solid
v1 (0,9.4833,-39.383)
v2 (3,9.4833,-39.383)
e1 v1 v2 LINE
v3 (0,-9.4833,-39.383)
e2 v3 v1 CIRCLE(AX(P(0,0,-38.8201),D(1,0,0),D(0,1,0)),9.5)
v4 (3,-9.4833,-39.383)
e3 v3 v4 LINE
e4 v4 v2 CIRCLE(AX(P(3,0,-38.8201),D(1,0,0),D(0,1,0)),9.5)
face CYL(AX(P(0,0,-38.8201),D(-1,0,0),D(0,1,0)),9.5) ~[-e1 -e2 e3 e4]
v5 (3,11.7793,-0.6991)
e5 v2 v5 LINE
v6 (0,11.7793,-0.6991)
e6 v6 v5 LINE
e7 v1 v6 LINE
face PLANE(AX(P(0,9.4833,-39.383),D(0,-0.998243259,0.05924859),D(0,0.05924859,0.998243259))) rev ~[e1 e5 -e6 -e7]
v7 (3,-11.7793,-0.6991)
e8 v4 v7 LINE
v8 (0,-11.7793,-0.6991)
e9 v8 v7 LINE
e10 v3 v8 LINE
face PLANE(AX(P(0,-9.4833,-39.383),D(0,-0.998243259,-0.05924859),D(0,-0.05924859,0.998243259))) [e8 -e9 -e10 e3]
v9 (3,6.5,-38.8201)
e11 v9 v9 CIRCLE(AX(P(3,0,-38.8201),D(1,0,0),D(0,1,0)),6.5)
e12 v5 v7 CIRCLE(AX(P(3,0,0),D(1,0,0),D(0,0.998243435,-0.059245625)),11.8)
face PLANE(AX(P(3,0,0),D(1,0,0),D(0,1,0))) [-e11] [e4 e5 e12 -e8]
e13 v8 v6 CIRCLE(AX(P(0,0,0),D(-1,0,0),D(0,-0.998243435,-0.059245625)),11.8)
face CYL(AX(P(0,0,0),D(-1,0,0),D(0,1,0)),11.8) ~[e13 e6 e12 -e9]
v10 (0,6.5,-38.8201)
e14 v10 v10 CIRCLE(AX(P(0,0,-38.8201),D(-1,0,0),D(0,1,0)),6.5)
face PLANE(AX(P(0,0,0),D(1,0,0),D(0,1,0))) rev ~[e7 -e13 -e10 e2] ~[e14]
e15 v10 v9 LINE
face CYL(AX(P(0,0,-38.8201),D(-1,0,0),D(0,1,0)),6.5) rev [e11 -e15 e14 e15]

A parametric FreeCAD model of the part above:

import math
import FreeCAD as App
import Part
import Sketcher

doc = App.newDocument("Part")
body = doc.addObject("PartDesign::Body", "Body")

# Sketch on YZ plane
sketch1 = body.newObject("Sketcher::SketchObject", "Sketch")
sketch1.AttachmentSupport = (doc.getObject("YZ_Plane"), [""])
sketch1.MapMode = "FlatFace"
sketch1.addGeometry(Part.ArcOfCircle(Part.Circle(App.Vector(0, -39, 0), App.Vector(0, 0, 1), 10), math.radians(-177), math.radians(-3)), False)
sketch1.addGeometry(Part.LineSegment(App.Vector(9, -39, 0), App.Vector(12, -1, 0)), False)
sketch1.addGeometry(Part.ArcOfCircle(Part.Circle(App.Vector(0, 0, 0), App.Vector(0, 0, 1), 12), math.radians(-3), math.radians(183)), False)
sketch1.addGeometry(Part.LineSegment(App.Vector(-12, -1, 0), App.Vector(-9, -39, 0)), False)
sketch1.addGeometry(Part.Circle(App.Vector(0, -39, 0), App.Vector(0, 0, 1), 6), False)
sketch1.addConstraint(Sketcher.Constraint("Tangent", 0, 2, 1, 1))
sketch1.addConstraint(Sketcher.Constraint("Tangent", 1, 2, 2, 1))
sketch1.addConstraint(Sketcher.Constraint("Tangent", 2, 2, 3, 1))
sketch1.addConstraint(Sketcher.Constraint("Tangent", 3, 2, 0, 1))
sketch1.addConstraint(Sketcher.Constraint("Coincident", 2, 3, -1, 1))
sketch1.addConstraint(Sketcher.Constraint("Coincident", 4, 3, 0, 3))
sketch1.addConstraint(Sketcher.Constraint("PointOnObject", 0, 3, -2))
sketch1.addConstraint(Sketcher.Constraint("Diameter", 4, 13.0))
sketch1.addConstraint(Sketcher.Constraint("Radius", 0, 9.5))
sketch1.addConstraint(Sketcher.Constraint("Radius", 2, 11.8))
sketch1.addConstraint(Sketcher.Constraint("DistanceY", 0, 3, -1, 1, 38.82))
pad1 = body.newObject("PartDesign::Pad", "Pad")
pad1.Profile = sketch1
pad1.Length = 3

doc.recompute()
